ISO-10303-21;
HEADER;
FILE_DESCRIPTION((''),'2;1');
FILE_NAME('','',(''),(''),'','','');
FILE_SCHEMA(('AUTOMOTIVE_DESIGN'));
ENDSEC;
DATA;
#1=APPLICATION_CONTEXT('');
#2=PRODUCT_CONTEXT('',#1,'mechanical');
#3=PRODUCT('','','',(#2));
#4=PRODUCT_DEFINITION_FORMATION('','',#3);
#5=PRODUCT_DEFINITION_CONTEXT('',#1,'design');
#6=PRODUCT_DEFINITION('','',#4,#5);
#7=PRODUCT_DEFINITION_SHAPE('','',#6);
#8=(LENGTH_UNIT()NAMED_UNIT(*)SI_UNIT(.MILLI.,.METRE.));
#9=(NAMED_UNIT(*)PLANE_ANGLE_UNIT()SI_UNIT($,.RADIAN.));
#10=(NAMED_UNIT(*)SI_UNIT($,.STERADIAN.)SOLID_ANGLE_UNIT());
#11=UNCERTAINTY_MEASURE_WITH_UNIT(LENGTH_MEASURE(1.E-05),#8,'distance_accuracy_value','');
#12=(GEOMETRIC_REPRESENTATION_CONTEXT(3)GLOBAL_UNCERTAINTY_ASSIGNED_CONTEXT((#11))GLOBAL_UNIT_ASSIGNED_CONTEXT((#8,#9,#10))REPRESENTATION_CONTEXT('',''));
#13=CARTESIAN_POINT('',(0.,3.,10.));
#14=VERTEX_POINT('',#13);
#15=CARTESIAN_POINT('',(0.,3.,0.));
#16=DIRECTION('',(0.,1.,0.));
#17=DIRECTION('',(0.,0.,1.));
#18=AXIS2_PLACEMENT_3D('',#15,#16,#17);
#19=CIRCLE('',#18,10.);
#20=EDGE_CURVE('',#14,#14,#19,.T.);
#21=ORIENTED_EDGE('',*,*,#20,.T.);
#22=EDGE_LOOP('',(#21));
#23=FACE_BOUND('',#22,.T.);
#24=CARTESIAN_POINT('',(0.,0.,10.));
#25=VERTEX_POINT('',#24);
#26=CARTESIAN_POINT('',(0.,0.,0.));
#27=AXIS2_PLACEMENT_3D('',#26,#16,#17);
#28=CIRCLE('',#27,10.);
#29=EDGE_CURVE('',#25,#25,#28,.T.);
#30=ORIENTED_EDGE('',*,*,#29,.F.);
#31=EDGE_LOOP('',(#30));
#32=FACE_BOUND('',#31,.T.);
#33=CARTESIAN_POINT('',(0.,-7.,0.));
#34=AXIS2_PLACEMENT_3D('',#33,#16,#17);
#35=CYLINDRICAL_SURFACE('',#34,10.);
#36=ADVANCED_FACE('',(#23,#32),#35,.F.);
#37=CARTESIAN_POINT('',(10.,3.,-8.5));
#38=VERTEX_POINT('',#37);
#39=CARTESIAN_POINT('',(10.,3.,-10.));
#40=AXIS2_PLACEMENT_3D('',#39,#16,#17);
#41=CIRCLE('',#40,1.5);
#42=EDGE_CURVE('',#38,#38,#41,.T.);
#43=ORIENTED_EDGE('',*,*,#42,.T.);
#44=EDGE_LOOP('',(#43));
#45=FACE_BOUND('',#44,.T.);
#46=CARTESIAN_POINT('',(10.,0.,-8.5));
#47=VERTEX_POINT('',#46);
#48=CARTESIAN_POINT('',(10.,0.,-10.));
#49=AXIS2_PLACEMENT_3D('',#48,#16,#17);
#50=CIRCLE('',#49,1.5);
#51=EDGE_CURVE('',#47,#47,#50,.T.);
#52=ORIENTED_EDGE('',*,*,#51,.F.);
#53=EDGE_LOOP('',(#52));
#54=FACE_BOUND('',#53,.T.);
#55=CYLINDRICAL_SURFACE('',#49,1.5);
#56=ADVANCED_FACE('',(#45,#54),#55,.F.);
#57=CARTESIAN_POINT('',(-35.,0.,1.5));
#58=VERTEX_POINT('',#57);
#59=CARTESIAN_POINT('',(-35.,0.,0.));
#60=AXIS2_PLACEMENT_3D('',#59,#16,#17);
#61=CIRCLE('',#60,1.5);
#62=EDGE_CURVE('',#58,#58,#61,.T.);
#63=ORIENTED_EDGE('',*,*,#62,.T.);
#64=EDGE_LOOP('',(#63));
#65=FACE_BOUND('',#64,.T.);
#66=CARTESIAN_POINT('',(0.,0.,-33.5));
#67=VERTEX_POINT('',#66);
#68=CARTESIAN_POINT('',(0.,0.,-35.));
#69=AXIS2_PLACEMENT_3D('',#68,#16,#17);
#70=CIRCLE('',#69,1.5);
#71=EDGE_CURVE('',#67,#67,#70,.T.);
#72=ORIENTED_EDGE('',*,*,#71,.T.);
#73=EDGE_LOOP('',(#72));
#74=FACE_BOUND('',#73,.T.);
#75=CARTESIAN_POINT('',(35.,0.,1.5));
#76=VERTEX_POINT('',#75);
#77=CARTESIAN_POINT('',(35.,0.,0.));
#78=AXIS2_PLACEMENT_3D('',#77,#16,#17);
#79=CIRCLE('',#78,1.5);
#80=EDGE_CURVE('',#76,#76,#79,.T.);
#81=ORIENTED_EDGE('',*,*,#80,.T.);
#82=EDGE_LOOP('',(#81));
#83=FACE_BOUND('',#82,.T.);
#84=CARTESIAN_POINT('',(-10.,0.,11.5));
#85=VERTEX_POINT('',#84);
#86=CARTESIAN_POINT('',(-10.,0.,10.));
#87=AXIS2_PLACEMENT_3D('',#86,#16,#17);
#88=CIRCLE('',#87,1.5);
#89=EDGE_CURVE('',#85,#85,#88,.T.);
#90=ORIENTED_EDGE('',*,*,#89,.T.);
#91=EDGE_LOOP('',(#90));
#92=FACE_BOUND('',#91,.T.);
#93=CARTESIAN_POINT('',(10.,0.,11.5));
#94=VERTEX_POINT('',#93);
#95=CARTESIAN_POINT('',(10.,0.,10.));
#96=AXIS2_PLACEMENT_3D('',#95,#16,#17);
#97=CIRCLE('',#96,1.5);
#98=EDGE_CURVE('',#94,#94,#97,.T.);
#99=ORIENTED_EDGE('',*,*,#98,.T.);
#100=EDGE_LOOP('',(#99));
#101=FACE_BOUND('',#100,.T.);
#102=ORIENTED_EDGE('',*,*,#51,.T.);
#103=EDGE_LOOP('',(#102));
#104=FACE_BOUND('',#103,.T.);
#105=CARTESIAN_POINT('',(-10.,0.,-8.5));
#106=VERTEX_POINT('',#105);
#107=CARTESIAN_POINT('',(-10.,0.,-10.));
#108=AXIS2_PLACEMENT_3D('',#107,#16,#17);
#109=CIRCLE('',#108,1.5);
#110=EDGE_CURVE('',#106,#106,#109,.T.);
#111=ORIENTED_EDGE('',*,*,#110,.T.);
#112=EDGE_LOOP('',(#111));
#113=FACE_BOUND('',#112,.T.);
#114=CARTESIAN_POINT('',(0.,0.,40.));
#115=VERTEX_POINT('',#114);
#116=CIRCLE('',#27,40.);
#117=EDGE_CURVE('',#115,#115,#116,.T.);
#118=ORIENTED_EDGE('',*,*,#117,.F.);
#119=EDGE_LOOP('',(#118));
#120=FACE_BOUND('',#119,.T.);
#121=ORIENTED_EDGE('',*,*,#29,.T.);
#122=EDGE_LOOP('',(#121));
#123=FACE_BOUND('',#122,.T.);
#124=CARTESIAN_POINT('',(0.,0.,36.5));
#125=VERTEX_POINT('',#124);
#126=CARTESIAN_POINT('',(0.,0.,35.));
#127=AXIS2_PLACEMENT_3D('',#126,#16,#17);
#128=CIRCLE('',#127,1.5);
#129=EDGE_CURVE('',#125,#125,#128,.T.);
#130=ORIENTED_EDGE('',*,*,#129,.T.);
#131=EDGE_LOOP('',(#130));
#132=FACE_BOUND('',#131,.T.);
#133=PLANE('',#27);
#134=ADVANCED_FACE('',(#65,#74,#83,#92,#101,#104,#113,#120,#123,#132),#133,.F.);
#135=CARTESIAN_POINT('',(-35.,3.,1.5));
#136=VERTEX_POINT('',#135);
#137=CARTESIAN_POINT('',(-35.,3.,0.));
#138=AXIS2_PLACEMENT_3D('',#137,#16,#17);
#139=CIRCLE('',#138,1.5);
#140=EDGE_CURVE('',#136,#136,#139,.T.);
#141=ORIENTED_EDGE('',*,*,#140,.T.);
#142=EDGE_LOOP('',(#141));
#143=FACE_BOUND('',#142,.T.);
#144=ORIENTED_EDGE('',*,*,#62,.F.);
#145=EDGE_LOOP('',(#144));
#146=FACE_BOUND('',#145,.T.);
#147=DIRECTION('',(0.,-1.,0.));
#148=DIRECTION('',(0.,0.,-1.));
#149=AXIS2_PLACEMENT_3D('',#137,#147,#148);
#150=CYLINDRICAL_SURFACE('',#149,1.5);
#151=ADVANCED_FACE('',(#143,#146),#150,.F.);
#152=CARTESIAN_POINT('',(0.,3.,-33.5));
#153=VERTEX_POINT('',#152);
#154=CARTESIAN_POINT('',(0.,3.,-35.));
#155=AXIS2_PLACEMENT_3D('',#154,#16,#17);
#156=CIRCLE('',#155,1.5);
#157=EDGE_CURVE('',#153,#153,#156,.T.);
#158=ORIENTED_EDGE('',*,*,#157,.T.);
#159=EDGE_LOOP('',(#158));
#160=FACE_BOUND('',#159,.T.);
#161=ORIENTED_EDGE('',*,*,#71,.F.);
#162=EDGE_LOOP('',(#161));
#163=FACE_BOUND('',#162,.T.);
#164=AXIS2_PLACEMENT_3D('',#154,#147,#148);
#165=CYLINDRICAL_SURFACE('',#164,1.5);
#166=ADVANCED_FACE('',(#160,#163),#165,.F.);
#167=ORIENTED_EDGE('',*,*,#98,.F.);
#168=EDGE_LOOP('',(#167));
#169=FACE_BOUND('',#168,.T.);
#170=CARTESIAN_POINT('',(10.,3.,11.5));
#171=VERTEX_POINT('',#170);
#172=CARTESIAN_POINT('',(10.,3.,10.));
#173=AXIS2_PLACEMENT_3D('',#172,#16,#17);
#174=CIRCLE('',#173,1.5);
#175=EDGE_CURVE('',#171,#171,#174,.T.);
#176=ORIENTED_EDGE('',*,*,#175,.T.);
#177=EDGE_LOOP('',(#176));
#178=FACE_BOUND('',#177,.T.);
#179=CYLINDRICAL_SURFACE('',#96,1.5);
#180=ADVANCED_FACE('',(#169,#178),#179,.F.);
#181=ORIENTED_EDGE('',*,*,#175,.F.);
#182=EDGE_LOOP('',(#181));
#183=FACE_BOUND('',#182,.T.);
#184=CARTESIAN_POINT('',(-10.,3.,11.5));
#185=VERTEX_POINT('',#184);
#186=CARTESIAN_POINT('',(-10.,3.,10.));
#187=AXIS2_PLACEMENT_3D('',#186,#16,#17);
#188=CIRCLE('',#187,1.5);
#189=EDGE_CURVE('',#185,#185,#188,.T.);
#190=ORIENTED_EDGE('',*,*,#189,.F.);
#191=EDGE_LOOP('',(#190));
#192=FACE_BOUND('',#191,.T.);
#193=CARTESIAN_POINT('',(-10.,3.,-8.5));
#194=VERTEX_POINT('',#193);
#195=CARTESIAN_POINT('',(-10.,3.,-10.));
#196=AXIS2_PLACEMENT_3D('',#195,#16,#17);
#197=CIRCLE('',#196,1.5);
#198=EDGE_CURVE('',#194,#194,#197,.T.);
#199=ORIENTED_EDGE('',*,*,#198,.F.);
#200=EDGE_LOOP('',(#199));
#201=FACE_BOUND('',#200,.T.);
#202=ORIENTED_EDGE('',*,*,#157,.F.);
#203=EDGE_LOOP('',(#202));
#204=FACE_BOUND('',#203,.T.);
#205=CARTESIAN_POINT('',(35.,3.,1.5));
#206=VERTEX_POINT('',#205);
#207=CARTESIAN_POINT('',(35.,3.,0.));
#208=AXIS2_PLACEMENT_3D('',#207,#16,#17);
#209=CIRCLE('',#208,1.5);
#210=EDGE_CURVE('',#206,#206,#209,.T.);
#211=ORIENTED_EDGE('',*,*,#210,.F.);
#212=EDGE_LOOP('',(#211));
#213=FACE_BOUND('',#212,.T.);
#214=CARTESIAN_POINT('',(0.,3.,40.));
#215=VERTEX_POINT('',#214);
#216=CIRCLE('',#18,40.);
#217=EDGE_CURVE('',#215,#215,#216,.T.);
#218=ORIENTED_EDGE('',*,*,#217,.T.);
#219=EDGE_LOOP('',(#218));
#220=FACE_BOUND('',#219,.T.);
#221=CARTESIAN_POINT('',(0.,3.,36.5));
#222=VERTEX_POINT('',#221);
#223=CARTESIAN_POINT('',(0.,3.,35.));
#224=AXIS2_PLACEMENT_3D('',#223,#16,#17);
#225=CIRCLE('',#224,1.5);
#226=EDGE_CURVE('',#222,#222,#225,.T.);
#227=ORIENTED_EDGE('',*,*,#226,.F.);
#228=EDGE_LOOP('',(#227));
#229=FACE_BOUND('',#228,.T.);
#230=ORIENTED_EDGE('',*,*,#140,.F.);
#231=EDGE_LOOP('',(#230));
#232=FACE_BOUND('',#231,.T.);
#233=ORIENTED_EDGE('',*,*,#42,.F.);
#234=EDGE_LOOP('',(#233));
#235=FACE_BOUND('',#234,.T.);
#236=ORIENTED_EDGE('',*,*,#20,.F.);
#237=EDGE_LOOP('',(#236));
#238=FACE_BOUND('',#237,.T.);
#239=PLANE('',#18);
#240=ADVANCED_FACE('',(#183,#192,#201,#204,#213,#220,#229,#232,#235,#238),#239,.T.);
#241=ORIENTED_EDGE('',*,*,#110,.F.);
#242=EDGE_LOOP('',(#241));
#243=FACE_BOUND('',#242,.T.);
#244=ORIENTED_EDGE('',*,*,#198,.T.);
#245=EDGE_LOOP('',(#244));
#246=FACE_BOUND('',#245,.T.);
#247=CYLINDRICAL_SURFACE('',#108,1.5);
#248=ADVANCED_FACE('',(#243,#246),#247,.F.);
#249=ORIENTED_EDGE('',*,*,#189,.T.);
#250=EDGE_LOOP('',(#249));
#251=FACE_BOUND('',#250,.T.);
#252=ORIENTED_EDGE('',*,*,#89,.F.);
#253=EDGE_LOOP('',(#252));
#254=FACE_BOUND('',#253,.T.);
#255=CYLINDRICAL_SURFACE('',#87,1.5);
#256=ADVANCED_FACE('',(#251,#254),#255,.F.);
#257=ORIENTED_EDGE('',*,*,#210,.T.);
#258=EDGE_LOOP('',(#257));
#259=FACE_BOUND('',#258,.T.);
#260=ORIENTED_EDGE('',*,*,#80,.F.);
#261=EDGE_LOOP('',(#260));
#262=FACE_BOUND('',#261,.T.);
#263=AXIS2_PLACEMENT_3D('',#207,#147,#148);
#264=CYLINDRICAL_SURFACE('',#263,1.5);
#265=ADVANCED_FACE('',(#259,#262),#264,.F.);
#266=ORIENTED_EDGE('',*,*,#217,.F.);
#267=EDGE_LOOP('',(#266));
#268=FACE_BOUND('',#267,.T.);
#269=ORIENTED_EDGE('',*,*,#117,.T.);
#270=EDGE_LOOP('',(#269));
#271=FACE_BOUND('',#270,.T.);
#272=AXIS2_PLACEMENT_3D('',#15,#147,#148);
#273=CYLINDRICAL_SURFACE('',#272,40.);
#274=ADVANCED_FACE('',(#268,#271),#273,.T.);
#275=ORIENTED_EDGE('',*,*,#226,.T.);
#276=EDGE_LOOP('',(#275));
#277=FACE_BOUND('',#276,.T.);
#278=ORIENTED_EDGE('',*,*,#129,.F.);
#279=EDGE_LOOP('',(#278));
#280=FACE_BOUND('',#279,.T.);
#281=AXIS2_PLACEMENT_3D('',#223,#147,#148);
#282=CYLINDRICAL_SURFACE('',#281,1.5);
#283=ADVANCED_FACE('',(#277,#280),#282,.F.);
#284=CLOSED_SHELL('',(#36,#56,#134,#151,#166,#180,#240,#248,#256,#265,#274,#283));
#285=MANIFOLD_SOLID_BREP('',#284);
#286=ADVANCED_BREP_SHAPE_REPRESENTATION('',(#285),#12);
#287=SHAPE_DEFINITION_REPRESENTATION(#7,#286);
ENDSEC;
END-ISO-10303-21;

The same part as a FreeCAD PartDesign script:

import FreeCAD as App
import Part
import Sketcher
from FreeCAD import Vector

doc = App.newDocument("Part")
body = doc.addObject("PartDesign::Body", "Body")

sketch1 = doc.addObject("Sketcher::SketchObject", "Sketch")
body.addObject(sketch1)
sketch1.AttachmentSupport = (doc.XZ_Plane, [""])
sketch1.MapMode = "FlatFace"
sketch1.addGeometry([
    Part.Circle(Vector(0, 0, 0), Vector(0, 0, 1), 40),
    Part.Circle(Vector(0, 35, 0), Vector(0, 0, 1), 1.5),
    Part.Circle(Vector(-35, 0, 0), Vector(0, 0, 1), 1.5),
    Part.Circle(Vector(35, 0, 0), Vector(0, 0, 1), 1.5),
    Part.Circle(Vector(0, -35, 0), Vector(0, 0, 1), 1.5),
], False)
sketch1.addConstraint([
    Sketcher.Constraint("Coincident", 0, 3, -1, 1),
    Sketcher.Constraint("Equal", 1, 2),
    Sketcher.Constraint("Equal", 2, 3),
    Sketcher.Constraint("Equal", 3, 4),
    Sketcher.Constraint("Symmetric", 2, 3, 3, 3, -1, 1),
    Sketcher.Constraint("Symmetric", 1, 3, 4, 3, -1, 1),
    Sketcher.Constraint("PointOnObject", 1, 3, -2),
    Sketcher.Constraint("PointOnObject", 2, 3, -1),
    Sketcher.Constraint("Diameter", 0, 80.0),
    Sketcher.Constraint("Diameter", 1, 3.0),
    Sketcher.Constraint("DistanceY", -1, 1, 1, 3, 35.0),
    Sketcher.Constraint("DistanceX", 2, 3, -1, 1, 35.0),
])
pad1 = doc.addObject("PartDesign::Pad", "Pad")
body.addObject(pad1)
pad1.Profile = sketch1
pad1.Length = 3
pad1.Reversed = True

sketch2 = doc.addObject("Sketcher::SketchObject", "Sketch001")
body.addObject(sketch2)
sketch2.AttachmentSupport = (doc.XZ_Plane, [""])
sketch2.MapMode = "FlatFace"
sketch2.AttachmentOffset = App.Placement(Vector(0, 0, -3), App.Rotation())
sketch2.addGeometry([
    Part.Circle(Vector(10, -10, 0), Vector(0, 0, 1), 1.5),
    Part.Circle(Vector(-10, -10, 0), Vector(0, 0, 1), 1.5),
    Part.Circle(Vector(-10, 10, 0), Vector(0, 0, 1), 1.5),
    Part.Circle(Vector(10, 10, 0), Vector(0, 0, 1), 1.5),
], False)
sketch2.addConstraint([
    Sketcher.Constraint("Equal", 0, 1),
    Sketcher.Constraint("Equal", 1, 2),
    Sketcher.Constraint("Equal", 2, 3),
    Sketcher.Constraint("Symmetric", 0, 3, 2, 3, -1, 1),
    Sketcher.Constraint("Symmetric", 1, 3, 3, 3, -1, 1),
    Sketcher.Constraint("Symmetric", 0, 3, 1, 3, -2),
    Sketcher.Constraint("Diameter", 0, 3.0),
    Sketcher.Constraint("DistanceX", -1, 1, 0, 3, 10.0),
    Sketcher.Constraint("DistanceY", 0, 3, -1, 1, 10.0),
])
pocket1 = doc.addObject("PartDesign::Pocket", "Pocket")
body.addObject(pocket1)
pocket1.Profile = sketch2
pocket1.Length = 3
pocket1.Reversed = True

sketch3 = doc.addObject("Sketcher::SketchObject", "Sketch002")
body.addObject(sketch3)
sketch3.AttachmentSupport = (doc.XZ_Plane, [""])
sketch3.MapMode = "FlatFace"
sketch3.AttachmentOffset = App.Placement(Vector(0, 0, -3), App.Rotation())
sketch3.addGeometry(Part.Circle(Vector(0, 0, 0), Vector(0, 0, 1), 10), False)
sketch3.addConstraint([
    Sketcher.Constraint("Coincident", 0, 3, -1, 1),
    Sketcher.Constraint("Diameter", 0, 20.0),
])
pocket2 = doc.addObject("PartDesign::Pocket", "Pocket001")
body.addObject(pocket2)
pocket2.Profile = sketch3
pocket2.Length = 10
pocket2.Reversed = True

doc.recompute()
